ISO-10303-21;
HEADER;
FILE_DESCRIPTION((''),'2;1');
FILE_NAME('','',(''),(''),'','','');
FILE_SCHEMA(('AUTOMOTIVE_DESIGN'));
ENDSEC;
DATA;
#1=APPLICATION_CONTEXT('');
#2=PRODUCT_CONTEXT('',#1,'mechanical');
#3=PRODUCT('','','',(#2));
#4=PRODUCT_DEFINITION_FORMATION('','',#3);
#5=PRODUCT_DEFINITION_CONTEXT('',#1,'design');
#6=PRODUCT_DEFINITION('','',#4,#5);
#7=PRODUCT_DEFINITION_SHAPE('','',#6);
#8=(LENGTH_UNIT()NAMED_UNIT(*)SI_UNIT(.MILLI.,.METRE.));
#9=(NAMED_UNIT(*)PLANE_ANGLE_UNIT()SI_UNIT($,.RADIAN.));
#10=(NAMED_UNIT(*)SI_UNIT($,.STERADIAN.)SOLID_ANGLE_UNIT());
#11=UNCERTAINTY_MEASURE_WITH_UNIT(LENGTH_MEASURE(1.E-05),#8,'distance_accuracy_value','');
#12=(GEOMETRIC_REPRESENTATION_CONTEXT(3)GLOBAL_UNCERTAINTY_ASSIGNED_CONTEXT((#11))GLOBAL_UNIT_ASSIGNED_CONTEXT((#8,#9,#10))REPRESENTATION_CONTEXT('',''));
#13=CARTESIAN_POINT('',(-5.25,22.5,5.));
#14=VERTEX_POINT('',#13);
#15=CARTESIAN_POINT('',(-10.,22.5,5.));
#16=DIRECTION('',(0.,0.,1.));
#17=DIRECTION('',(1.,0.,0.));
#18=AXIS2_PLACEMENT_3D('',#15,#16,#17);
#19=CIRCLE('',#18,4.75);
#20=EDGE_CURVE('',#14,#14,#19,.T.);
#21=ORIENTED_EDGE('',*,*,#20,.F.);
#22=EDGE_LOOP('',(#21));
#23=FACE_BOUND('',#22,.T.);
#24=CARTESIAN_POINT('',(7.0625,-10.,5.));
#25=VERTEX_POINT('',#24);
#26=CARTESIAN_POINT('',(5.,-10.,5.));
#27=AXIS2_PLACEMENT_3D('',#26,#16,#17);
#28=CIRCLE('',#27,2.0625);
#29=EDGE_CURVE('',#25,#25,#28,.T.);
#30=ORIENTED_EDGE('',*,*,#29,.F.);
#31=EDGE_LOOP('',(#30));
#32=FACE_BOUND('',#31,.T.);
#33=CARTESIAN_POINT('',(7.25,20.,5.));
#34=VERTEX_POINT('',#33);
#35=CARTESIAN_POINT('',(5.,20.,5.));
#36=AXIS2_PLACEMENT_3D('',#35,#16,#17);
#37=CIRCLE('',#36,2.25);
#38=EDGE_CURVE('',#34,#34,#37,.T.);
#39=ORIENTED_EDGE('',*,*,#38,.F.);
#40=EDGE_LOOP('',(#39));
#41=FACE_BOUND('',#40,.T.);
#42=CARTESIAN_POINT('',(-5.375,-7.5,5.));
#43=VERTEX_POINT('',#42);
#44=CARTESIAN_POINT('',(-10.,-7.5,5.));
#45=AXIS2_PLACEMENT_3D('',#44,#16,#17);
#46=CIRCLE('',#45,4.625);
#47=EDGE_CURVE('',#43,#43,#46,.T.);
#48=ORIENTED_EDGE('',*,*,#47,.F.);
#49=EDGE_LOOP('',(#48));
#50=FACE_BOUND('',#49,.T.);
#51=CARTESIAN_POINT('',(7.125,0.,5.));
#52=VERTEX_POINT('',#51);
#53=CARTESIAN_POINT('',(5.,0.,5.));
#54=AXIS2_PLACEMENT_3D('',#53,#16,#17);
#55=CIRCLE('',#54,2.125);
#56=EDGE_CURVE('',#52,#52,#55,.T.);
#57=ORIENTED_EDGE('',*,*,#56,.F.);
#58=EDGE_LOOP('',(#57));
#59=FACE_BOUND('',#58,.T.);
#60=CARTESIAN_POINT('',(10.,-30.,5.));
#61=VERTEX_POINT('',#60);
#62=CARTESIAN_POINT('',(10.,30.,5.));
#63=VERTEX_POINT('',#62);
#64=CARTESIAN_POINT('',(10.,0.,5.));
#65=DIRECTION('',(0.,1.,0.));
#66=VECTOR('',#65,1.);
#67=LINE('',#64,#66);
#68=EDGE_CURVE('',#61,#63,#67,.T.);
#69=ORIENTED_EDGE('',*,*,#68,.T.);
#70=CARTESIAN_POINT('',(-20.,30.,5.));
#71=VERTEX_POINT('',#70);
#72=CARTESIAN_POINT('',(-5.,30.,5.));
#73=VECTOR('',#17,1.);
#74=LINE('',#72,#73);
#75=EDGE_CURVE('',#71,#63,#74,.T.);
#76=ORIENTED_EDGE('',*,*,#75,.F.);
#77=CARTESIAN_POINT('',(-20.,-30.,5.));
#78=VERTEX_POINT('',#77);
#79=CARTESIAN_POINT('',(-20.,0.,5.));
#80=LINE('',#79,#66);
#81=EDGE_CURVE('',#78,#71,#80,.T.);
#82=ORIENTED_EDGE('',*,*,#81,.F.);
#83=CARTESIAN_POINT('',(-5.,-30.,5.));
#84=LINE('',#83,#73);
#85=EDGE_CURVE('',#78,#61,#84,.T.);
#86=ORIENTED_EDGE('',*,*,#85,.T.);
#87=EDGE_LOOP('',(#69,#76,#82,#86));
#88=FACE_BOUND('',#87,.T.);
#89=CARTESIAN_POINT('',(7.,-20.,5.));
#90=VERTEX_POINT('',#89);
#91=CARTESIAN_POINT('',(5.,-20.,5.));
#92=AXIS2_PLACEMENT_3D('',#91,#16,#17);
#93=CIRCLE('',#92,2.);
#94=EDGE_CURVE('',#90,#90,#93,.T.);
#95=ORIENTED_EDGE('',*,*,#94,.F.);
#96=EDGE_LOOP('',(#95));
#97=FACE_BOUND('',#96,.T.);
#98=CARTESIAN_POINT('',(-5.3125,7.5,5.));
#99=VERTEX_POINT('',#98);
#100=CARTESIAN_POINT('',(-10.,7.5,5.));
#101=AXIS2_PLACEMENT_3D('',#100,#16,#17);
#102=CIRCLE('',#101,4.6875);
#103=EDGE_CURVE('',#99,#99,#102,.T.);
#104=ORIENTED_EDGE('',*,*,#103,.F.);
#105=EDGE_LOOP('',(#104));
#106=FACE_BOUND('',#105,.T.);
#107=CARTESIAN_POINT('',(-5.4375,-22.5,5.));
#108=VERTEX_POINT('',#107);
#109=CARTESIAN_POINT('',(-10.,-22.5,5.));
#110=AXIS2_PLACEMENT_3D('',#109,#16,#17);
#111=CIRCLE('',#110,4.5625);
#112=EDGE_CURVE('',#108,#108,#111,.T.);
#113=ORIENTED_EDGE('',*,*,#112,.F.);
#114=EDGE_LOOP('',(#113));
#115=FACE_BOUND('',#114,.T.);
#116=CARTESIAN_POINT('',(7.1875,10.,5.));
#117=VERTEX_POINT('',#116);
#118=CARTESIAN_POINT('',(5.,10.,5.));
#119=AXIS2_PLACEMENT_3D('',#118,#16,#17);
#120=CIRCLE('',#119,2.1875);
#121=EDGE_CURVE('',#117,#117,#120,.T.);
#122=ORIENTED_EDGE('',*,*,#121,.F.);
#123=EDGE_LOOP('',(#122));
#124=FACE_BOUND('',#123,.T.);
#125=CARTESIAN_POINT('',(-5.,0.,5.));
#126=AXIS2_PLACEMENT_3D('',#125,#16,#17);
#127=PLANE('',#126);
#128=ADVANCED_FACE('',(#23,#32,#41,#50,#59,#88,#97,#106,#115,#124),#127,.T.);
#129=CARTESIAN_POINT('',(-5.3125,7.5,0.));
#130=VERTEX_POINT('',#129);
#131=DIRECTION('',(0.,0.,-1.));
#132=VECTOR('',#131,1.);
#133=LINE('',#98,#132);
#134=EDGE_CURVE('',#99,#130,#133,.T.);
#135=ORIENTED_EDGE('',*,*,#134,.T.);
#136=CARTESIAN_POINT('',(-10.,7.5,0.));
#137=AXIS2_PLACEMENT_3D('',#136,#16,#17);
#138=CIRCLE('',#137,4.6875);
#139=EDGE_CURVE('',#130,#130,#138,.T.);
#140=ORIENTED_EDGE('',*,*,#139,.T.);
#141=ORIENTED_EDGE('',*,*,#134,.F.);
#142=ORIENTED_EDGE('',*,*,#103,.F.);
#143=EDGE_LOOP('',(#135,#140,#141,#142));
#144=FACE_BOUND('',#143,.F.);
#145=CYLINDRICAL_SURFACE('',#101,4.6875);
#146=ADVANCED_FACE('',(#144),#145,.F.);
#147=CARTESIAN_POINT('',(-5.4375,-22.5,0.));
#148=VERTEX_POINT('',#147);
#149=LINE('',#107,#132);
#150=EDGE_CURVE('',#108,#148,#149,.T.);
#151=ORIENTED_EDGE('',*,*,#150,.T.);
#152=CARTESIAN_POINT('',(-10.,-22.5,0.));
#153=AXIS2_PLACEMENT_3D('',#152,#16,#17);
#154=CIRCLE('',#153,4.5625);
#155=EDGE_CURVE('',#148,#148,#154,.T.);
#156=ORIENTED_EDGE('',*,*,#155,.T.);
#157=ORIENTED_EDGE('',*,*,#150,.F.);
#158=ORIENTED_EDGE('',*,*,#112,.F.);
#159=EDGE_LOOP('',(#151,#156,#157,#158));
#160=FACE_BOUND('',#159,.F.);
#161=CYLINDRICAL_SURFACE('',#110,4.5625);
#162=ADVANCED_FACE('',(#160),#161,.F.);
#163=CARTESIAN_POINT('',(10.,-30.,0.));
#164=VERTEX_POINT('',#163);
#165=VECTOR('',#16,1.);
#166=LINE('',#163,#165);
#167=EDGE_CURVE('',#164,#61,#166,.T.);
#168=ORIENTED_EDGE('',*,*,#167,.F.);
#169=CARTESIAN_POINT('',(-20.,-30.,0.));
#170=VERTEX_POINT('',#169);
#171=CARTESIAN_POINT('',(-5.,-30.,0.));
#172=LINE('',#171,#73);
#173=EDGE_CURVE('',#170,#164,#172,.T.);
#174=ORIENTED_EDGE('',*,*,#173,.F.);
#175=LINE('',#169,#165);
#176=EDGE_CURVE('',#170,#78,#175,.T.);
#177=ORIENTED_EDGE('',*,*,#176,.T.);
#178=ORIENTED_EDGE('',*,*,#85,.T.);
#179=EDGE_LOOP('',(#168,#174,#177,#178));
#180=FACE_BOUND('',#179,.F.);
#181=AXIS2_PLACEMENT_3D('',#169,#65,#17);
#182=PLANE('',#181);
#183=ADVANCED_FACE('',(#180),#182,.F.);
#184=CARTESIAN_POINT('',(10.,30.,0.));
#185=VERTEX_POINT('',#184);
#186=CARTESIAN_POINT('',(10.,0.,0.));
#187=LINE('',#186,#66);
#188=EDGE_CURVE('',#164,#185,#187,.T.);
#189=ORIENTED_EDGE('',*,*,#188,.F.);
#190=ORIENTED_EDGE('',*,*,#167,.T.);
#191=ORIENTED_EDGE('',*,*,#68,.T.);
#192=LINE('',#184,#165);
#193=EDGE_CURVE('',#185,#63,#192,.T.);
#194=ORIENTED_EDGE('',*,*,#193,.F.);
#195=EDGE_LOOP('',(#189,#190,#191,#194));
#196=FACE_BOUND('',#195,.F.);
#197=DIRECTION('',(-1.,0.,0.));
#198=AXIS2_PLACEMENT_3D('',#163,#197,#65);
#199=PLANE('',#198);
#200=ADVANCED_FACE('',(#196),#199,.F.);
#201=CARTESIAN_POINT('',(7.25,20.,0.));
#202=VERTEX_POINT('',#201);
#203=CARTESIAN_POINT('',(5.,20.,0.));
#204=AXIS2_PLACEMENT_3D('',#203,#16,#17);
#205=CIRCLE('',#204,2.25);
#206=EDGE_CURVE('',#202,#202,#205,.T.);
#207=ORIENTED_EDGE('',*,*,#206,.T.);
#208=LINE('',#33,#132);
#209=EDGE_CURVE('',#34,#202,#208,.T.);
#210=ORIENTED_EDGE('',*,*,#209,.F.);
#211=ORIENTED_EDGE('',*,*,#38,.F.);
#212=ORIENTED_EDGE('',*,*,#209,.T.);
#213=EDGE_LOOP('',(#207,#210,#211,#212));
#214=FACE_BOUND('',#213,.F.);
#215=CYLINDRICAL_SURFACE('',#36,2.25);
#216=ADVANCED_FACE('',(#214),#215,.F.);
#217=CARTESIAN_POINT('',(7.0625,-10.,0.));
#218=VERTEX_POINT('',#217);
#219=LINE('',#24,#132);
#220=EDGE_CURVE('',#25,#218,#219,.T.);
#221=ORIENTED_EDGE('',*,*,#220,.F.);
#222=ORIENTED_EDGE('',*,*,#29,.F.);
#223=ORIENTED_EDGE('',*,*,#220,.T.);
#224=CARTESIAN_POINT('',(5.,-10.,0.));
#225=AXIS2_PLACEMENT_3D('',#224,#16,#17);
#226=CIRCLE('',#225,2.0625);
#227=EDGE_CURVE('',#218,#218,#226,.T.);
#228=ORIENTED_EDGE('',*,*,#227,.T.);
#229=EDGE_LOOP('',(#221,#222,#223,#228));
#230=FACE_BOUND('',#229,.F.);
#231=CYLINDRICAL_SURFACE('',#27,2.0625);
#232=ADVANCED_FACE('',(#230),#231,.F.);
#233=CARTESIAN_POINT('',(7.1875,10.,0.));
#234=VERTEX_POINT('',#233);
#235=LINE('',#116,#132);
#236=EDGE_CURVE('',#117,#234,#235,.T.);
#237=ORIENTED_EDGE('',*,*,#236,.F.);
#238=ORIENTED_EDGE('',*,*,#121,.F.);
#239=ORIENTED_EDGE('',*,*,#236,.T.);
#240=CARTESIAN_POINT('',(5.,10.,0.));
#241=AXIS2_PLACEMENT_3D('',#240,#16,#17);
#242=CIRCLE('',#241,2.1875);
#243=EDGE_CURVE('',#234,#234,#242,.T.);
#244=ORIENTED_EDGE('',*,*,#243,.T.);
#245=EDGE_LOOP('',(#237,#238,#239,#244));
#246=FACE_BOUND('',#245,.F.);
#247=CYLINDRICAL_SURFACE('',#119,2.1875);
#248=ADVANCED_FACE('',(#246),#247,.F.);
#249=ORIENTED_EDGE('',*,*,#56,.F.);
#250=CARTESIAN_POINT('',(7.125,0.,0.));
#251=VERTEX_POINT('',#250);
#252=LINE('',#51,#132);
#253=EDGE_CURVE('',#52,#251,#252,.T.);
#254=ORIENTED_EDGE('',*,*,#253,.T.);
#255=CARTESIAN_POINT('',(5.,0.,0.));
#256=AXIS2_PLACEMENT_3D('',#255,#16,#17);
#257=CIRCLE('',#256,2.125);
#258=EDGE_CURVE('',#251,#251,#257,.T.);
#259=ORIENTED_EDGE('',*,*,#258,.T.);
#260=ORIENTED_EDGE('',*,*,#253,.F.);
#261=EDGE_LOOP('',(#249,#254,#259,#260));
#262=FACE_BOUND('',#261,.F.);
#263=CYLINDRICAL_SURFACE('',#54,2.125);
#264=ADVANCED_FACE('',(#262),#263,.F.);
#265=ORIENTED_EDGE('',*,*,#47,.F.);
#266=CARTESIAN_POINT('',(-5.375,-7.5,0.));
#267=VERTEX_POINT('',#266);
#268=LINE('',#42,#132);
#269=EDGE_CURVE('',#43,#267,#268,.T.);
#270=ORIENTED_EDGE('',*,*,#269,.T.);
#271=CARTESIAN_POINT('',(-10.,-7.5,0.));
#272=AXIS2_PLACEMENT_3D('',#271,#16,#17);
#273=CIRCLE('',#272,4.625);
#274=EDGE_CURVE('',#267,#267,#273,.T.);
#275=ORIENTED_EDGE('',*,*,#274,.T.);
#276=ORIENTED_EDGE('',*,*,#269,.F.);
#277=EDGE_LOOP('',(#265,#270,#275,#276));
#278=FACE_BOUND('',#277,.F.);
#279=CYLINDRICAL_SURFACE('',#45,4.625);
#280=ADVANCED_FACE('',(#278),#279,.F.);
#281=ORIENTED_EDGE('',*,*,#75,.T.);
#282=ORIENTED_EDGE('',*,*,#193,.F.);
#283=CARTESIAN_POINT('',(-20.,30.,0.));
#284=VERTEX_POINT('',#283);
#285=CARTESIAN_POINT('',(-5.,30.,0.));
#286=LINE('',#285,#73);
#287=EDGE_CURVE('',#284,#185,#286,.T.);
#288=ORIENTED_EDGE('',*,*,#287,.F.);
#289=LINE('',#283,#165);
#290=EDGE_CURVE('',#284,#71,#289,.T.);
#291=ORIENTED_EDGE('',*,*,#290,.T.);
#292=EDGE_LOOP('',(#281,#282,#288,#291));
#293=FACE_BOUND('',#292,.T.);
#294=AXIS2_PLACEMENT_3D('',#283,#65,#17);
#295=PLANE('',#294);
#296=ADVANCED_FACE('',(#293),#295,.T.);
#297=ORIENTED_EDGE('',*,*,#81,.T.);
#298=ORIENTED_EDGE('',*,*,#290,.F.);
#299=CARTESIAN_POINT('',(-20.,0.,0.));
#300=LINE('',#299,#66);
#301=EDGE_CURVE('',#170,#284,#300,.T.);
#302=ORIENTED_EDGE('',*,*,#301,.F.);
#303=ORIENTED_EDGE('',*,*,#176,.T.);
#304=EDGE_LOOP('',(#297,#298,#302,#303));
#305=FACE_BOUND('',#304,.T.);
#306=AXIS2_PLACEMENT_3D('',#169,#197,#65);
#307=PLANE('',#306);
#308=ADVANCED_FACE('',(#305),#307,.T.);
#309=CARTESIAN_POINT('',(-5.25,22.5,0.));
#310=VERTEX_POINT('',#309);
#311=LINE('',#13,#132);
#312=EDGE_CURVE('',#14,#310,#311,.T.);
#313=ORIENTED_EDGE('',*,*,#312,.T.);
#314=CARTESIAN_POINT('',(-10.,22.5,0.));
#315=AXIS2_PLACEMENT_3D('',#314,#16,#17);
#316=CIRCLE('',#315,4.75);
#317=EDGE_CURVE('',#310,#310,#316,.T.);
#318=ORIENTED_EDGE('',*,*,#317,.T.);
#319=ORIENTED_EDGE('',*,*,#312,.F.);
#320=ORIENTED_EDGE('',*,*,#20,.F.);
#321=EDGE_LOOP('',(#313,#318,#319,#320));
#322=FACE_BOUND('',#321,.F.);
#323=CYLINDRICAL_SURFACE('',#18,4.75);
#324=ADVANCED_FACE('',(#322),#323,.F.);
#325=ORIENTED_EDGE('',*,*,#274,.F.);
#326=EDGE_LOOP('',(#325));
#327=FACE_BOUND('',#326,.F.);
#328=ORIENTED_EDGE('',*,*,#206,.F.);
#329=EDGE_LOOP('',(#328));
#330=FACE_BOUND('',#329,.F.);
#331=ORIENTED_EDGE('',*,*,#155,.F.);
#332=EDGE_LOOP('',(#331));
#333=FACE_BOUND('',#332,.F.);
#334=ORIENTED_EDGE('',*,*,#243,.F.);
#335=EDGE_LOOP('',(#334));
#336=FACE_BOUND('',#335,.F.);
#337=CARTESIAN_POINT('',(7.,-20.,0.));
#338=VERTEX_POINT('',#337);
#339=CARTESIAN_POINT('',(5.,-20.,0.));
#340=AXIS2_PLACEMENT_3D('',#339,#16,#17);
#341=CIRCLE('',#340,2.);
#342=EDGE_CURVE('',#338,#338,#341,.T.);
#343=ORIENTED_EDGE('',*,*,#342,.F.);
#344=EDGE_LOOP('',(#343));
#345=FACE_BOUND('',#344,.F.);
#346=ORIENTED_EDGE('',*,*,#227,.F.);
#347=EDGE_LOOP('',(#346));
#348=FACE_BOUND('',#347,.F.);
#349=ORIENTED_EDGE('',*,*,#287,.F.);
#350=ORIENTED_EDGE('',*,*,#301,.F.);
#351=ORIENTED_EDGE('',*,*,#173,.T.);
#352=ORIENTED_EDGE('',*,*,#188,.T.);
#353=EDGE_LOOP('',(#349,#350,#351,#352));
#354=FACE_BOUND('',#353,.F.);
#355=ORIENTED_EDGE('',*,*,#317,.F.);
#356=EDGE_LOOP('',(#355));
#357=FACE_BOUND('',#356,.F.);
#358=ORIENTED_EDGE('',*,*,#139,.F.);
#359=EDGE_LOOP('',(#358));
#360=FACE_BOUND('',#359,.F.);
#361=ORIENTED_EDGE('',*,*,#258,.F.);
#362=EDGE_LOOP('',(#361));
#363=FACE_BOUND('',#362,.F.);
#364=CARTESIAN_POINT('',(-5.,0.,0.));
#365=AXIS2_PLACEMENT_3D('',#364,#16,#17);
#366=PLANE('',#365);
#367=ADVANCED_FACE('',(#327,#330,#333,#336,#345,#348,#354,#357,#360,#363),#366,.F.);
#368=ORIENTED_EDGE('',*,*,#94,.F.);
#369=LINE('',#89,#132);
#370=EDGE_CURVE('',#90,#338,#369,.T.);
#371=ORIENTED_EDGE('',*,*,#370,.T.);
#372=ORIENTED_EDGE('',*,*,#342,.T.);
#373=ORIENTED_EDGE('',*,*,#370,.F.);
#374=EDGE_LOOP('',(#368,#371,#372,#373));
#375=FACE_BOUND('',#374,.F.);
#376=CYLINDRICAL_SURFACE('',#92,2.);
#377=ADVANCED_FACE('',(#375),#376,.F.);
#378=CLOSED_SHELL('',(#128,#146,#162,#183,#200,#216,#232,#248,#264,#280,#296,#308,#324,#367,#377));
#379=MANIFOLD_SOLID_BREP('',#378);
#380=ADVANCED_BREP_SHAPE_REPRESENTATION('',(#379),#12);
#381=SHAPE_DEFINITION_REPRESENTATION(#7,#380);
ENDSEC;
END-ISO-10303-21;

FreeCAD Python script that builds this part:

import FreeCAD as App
import Part
import Sketcher

V = App.Vector


def add_polygon(sketch, points):
    """Adds a closed chain of lines whose ends are joined by coincident constraints."""
    first, n = sketch.GeometryCount, len(points)
    for a, b in zip(points, points[1:] + points[:1]):
        sketch.addGeometry(Part.LineSegment(App.Vector(*a, 0), App.Vector(*b, 0)), False)
    for i in range(n):
        sketch.addConstraint(Sketcher.Constraint("Coincident", first + i, 2, first + (i + 1) % n, 1))

doc = App.newDocument("Part")
params = doc.addObject("Spreadsheet::Sheet", "Params")
for row, (alias, value) in enumerate([
    ("sketch1_width", "30 mm"),
    ("sketch1_height", "60 mm"),
    ("pad1_length", "5 mm"),
    ("sketch2_diameter", "4 mm"),
    ("sketch2_diameter2", "9.5 mm"),
    ("sketch2_diameter3", "4.5 mm"),
    ("sketch2_diameter4", "9.25 mm"),
    ("sketch2_diameter5", "4.25 mm"),
], start=1):
    params.set(f"A{row}", alias)
    params.set(f"B{row}", "=" + value)
    params.setAlias(f"B{row}", alias)

body = doc.addObject("PartDesign::Body", "Body")

sketch1 = body.newObject("Sketcher::SketchObject", "Sketch")
sketch1.AttachmentSupport = (doc.getObject("XY_Plane"), [""])
sketch1.MapMode = "FlatFace"
add_polygon(sketch1, [(-20, 30), (-20, -30), (10, -30), (10, 30)])
sketch1.addConstraint([
    Sketcher.Constraint("Vertical", 0),
    Sketcher.Constraint("Horizontal", 1),
    Sketcher.Constraint("Vertical", 2),
    Sketcher.Constraint("Horizontal", 3),
    Sketcher.Constraint("DistanceX", 1, 1, 1, 2, 30.0),
    Sketcher.Constraint("DistanceY", 0, 2, 0, 1, 60.0),
    Sketcher.Constraint("DistanceX", 0, 2, -1, 1, 20.0),
    Sketcher.Constraint("DistanceY", 0, 2, -1, 1, 30.0),
])
sketch1.setExpression("Constraints[8]", "Params.sketch1_width")
sketch1.setExpression("Constraints[9]", "Params.sketch1_height")
pad1 = body.newObject("PartDesign::Pad", "Pad")
pad1.Profile = sketch1
pad1.setExpression("Length", "Params.pad1_length")

sketch2 = body.newObject("Sketcher::SketchObject", "Sketch001")
sketch2.AttachmentSupport = (doc.getObject("XY_Plane"), [""])
sketch2.MapMode = "FlatFace"
sketch2.AttachmentOffset = App.Placement(V(0, 0, 5), App.Rotation())
sketch2.addGeometry([
    Part.Circle(V(-10, 22.5, 0), V(0, 0, 1), 4.8),
    Part.Circle(V(-10, 7.5, 0), V(0, 0, 1), 4.7),
    Part.Circle(V(-10, -7.5, 0), V(0, 0, 1), 4.6),
    Part.Circle(V(-10, -22.5, 0), V(0, 0, 1), 4.6),
    Part.Circle(V(5, -20, 0), V(0, 0, 1), 2),
    Part.Circle(V(5, -10, 0), V(0, 0, 1), 2.1),
    Part.Circle(V(5, 0, 0), V(0, 0, 1), 2.1),
    Part.Circle(V(5, 10, 0), V(0, 0, 1), 2.2),
    Part.Circle(V(5, 20, 0), V(0, 0, 1), 2.2),
], False)
sketch2.addConstraint([
    Sketcher.Constraint("Symmetric", 1, 3, 2, 3, -1),
    Sketcher.Constraint("Symmetric", 0, 3, 3, 3, -1),
    Sketcher.Constraint("Symmetric", 5, 3, 7, 3, -1),
    Sketcher.Constraint("Symmetric", 4, 3, 8, 3, -1),
    Sketcher.Constraint("PointOnObject", 6, 3, -1),
    Sketcher.Constraint("Vertical", 0, 3, 1, 3),
    Sketcher.Constraint("Vertical", 4, 3, 5, 3),
    Sketcher.Constraint("Vertical", 5, 3, 6, 3),
    Sketcher.Constraint("Diameter", 4, 4.0),
    Sketcher.Constraint("Diameter", 0, 9.5),
    Sketcher.Constraint("Diameter", 8, 4.5),
    Sketcher.Constraint("Diameter", 2, 9.25),
    Sketcher.Constraint("Diameter", 6, 4.25),
    Sketcher.Constraint("Diameter", 1, 9.375),
    Sketcher.Constraint("Diameter", 3, 9.125),
    Sketcher.Constraint("Diameter", 5, 4.125),
    Sketcher.Constraint("Diameter", 7, 4.375),
    Sketcher.Constraint("DistanceX", 0, 3, -1, 1, 10.0),
    Sketcher.Constraint("DistanceX", -1, 1, 4, 3, 5.0),
    Sketcher.Constraint("DistanceY", 4, 3, -1, 1, 20.0),
    Sketcher.Constraint("DistanceY", 5, 3, -1, 1, 10.0),
    Sketcher.Constraint("DistanceY", 1, 3, 0, 3, 15.0),
    Sketcher.Constraint("DistanceY", 2, 3, 1, 3, 15.0),
])
sketch2.setExpression("Constraints[8]", "Params.sketch2_diameter")
sketch2.setExpression("Constraints[9]", "Params.sketch2_diameter2")
sketch2.setExpression("Constraints[10]", "Params.sketch2_diameter3")
sketch2.setExpression("Constraints[11]", "Params.sketch2_diameter4")
sketch2.setExpression("Constraints[12]", "Params.sketch2_diameter5")
pocket1 = body.newObject("PartDesign::Pocket", "Pocket")
pocket1.Profile = sketch2
pocket1.Type = "ThroughAll"

doc.recompute()
